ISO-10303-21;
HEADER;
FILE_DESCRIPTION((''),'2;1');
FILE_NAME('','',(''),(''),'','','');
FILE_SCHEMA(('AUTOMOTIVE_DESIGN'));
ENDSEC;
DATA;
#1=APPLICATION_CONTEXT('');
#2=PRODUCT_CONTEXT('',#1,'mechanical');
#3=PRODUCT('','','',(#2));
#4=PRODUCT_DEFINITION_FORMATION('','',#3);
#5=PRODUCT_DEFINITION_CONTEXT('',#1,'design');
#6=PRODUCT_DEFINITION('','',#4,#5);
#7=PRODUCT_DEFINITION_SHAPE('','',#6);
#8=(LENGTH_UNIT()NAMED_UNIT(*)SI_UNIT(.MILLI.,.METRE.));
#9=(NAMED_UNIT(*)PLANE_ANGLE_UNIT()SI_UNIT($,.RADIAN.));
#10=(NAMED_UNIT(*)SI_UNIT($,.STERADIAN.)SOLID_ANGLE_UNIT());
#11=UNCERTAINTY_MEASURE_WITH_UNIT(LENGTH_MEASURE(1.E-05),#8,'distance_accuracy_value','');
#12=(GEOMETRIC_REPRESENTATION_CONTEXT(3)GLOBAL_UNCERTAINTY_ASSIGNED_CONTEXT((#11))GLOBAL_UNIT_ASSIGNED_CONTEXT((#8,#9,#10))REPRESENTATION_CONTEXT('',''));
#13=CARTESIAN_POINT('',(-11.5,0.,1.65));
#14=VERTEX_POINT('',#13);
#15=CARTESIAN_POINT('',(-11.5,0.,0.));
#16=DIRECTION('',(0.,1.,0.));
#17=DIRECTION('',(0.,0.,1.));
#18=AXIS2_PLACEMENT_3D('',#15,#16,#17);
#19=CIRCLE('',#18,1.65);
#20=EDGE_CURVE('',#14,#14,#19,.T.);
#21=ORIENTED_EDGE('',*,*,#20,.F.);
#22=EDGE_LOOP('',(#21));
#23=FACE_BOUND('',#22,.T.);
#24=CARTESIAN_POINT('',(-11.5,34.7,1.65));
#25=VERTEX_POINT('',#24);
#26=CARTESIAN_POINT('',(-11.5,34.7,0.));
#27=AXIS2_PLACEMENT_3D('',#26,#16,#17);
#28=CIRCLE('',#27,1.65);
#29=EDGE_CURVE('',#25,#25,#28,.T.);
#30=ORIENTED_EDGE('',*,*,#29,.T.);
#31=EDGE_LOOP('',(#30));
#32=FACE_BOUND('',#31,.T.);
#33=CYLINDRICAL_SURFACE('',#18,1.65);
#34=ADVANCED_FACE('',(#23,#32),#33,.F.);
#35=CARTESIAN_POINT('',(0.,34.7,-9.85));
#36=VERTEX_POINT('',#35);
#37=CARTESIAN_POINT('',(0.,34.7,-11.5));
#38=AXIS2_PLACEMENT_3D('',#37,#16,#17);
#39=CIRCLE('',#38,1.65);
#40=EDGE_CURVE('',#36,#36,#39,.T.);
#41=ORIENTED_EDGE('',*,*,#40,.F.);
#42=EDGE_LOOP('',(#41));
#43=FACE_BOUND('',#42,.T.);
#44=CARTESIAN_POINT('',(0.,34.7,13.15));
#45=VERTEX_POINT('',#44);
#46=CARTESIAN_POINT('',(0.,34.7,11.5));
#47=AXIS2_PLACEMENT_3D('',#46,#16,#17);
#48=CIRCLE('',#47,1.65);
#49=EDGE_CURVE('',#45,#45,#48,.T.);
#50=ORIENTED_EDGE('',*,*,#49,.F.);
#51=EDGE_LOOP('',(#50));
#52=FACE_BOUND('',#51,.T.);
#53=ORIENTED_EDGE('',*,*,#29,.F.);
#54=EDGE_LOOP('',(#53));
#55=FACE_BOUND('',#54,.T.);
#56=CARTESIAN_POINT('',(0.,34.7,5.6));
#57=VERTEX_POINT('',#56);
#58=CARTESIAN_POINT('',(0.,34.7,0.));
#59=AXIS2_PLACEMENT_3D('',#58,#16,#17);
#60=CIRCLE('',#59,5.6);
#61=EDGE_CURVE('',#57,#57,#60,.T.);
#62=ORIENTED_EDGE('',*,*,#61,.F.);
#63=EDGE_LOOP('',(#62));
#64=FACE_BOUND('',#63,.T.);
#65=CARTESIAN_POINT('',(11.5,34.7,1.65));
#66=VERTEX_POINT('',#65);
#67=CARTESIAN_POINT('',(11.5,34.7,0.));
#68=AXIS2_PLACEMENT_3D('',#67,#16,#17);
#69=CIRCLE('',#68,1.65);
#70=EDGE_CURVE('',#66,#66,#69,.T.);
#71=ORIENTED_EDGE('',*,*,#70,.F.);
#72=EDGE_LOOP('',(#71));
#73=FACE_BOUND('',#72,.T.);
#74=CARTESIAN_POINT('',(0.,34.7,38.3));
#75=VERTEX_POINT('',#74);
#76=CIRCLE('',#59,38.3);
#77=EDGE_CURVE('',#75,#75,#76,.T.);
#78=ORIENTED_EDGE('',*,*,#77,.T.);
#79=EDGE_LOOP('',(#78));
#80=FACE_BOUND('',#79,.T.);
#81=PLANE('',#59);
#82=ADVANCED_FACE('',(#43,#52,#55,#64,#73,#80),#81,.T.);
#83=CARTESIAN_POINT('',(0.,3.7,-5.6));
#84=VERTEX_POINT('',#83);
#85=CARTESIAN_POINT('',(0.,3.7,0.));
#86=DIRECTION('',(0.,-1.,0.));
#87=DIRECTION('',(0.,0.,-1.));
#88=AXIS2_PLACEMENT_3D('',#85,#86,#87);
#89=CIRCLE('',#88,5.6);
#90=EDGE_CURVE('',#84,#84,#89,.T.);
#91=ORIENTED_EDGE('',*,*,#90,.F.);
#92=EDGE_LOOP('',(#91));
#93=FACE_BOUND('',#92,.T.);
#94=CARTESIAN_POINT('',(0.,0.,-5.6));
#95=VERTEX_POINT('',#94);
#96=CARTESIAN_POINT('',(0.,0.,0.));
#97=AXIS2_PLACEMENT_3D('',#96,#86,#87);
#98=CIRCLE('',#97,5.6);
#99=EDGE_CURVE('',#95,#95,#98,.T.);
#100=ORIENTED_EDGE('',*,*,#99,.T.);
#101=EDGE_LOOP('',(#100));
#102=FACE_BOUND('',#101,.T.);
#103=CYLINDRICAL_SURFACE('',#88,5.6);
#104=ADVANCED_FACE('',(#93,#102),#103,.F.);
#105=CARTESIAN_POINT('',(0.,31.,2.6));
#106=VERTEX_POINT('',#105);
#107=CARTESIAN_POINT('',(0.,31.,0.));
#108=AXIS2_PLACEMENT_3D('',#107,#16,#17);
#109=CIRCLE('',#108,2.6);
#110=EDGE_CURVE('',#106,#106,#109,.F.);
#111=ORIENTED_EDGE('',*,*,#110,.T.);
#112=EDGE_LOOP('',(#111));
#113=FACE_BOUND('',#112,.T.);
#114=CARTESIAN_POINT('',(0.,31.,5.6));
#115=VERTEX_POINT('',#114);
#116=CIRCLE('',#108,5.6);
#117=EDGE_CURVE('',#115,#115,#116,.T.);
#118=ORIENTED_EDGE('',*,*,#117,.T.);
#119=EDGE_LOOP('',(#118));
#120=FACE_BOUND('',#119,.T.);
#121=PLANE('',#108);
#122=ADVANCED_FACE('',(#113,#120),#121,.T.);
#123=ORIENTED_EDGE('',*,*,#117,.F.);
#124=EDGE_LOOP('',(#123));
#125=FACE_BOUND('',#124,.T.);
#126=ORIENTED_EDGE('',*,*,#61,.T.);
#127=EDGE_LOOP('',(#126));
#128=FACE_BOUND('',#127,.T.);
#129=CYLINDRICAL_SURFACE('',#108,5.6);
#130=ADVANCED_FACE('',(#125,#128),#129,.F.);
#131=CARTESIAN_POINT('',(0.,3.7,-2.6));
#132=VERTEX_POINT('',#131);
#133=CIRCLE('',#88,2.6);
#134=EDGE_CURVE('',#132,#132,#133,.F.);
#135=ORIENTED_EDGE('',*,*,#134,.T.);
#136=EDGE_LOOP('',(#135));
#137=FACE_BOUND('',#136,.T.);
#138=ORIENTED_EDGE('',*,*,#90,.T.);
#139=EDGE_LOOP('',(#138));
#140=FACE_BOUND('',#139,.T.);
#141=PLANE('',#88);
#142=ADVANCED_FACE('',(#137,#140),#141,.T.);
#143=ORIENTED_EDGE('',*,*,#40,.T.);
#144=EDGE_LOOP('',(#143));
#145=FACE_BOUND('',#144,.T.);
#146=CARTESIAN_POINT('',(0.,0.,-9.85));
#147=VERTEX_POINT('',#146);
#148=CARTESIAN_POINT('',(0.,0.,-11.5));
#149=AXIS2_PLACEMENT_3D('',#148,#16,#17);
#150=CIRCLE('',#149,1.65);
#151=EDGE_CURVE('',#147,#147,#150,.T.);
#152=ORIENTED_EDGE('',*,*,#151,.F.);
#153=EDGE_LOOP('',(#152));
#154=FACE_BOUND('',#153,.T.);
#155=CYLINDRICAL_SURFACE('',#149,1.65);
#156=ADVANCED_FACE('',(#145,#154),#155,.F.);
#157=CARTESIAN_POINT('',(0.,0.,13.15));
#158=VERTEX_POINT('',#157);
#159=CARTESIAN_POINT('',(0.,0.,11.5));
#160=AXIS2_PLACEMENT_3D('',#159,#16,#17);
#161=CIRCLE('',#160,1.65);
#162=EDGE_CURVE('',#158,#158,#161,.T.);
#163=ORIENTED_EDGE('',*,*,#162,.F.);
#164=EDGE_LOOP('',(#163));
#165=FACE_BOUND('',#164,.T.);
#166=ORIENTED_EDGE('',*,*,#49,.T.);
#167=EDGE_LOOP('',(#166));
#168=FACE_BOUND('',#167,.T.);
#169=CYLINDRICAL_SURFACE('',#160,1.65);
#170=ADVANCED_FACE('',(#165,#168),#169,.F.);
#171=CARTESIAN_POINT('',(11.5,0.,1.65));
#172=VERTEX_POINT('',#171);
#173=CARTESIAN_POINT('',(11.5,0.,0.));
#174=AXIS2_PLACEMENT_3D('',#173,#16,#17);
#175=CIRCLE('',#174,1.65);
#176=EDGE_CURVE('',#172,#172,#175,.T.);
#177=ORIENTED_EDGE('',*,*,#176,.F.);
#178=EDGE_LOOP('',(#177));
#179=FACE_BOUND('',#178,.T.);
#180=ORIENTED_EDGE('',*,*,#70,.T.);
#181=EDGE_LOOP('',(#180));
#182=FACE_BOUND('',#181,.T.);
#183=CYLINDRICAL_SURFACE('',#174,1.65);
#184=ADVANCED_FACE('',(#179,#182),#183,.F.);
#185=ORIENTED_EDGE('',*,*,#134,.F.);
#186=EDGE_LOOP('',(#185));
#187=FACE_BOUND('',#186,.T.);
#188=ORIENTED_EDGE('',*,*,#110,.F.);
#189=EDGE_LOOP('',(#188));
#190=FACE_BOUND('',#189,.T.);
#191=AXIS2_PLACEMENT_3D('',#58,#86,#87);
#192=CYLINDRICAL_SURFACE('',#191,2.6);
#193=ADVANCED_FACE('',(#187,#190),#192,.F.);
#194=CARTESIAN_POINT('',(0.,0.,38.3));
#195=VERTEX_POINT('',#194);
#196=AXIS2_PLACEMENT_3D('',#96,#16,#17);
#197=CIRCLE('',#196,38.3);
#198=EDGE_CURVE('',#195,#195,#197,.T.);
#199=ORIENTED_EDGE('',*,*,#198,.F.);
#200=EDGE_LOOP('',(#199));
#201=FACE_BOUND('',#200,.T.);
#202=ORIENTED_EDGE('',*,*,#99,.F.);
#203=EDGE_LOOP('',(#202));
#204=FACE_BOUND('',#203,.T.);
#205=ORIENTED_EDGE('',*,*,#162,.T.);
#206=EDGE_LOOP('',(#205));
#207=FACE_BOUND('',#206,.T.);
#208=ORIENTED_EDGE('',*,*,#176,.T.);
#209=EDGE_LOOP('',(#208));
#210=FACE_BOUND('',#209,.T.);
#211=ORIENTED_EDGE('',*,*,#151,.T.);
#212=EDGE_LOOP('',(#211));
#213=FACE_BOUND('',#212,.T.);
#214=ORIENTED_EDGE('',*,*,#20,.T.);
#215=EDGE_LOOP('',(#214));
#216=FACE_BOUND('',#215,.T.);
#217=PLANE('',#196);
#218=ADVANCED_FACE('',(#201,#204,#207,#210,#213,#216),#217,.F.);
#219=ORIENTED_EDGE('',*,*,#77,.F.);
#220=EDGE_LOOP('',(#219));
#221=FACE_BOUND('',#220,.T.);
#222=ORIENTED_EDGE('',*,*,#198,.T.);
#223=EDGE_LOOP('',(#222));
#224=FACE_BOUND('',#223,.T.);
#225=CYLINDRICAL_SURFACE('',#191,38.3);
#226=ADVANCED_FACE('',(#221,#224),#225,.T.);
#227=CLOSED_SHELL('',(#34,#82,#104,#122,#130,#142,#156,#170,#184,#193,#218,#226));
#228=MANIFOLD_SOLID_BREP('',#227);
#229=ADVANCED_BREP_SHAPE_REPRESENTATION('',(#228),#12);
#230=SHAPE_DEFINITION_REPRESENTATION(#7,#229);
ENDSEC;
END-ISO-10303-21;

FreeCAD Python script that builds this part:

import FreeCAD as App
import Part
import Sketcher

V = App.Vector
Q = App.Units.Quantity

doc = App.newDocument("Part")
body = doc.addObject("PartDesign::Body", "Body")

# Sketch on XZ plane
sketch1 = doc.addObject("Sketcher::SketchObject", "Sketch")
body.addObject(sketch1)
sketch1.AttachmentSupport = (doc.XZ_Plane, [""])
sketch1.MapMode = "FlatFace"
sketch1.addGeometry(Part.Circle(V(0, 0, 0), V(0, 0, 1), 38), False)
sketch1.addConstraint([
    Sketcher.Constraint("Coincident", 0, 3, -1, 1),
    Sketcher.Constraint("Diameter", 0, Q("76.6 mm")),
])
pad1 = doc.addObject("PartDesign::Pad", "Pad")
body.addObject(pad1)
pad1.Profile = sketch1
pad1.Length = 34.7
pad1.Reversed = True

# Sketch on XZ plane
sketch2 = doc.addObject("Sketcher::SketchObject", "Sketch001")
body.addObject(sketch2)
sketch2.AttachmentSupport = (doc.XZ_Plane, [""])
sketch2.MapMode = "FlatFace"
sketch2.addGeometry(Part.Circle(V(0, 0, 0), V(0, 0, 1), 2.6), False)
sketch2.addConstraint([
    Sketcher.Constraint("Coincident", 0, 3, -1, 1),
    Sketcher.Constraint("Diameter", 0, Q("5.2 mm")),
])
pocket1 = doc.addObject("PartDesign::Pocket", "Pocket")
body.addObject(pocket1)
pocket1.Profile = sketch2
pocket1.Length = 34.7

# Sketch on XZ plane
sketch3 = doc.addObject("Sketcher::SketchObject", "Sketch002")
body.addObject(sketch3)
sketch3.AttachmentSupport = (doc.XZ_Plane, [""])
sketch3.MapMode = "FlatFace"
sketch3.addGeometry(Part.Circle(V(0, 0, 0), V(0, 0, 1), 6), False)
sketch3.addConstraint([
    Sketcher.Constraint("Coincident", 0, 3, -1, 1),
    Sketcher.Constraint("Diameter", 0, Q("11.2 mm")),
])
pocket2 = doc.addObject("PartDesign::Pocket", "Pocket001")
body.addObject(pocket2)
pocket2.Profile = sketch3
pocket2.Length = 3.7

# Sketch on XZ plane
sketch4 = doc.addObject("Sketcher::SketchObject", "Sketch003")
body.addObject(sketch4)
sketch4.AttachmentSupport = (doc.XZ_Plane, [""])
sketch4.MapMode = "FlatFace"
sketch4.AttachmentOffset = App.Placement(V(0, 0, -31), App.Rotation())
sketch4.addGeometry(Part.Circle(V(0, 0, 0), V(0, 0, 1), 6), False)
sketch4.addConstraint([
    Sketcher.Constraint("Coincident", 0, 3, -1, 1),
    Sketcher.Constraint("Diameter", 0, Q("11.2 mm")),
])
pocket3 = doc.addObject("PartDesign::Pocket", "Pocket002")
body.addObject(pocket3)
pocket3.Profile = sketch4
pocket3.Length = 3.7

# Sketch on XZ plane
sketch5 = doc.addObject("Sketcher::SketchObject", "Sketch004")
body.addObject(sketch5)
sketch5.AttachmentSupport = (doc.XZ_Plane, [""])
sketch5.MapMode = "FlatFace"
sketch5.AttachmentOffset = App.Placement(V(0, 0, -34.7), App.Rotation())
sketch5.addGeometry([
    Part.Circle(V(0, -11.5, 0), V(0, 0, 1), 1.6),
    Part.Circle(V(11.5, 0, 0), V(0, 0, 1), 1.6),
    Part.Circle(V(0, 11.5, 0), V(0, 0, 1), 1.6),
    Part.Circle(V(-11.5, 0, 0), V(0, 0, 1), 1.6),
], False)
sketch5.addConstraint([
    Sketcher.Constraint("Equal", 0, 1),
    Sketcher.Constraint("Equal", 1, 2),
    Sketcher.Constraint("Equal", 2, 3),
    Sketcher.Constraint("Symmetric", 0, 3, 2, 3, -1, 1),
    Sketcher.Constraint("Symmetric", 1, 3, 3, 3, -1, 1),
    Sketcher.Constraint("PointOnObject", 0, 3, -2),
    Sketcher.Constraint("PointOnObject", 1, 3, -1),
    Sketcher.Constraint("Diameter", 0, Q("3.3 mm")),
    Sketcher.Constraint("DistanceY", 0, 3, 2, 3, Q("23 mm")),
    Sketcher.Constraint("DistanceX", 3, 3, 1, 3, Q("23 mm")),
])
pocket4 = doc.addObject("PartDesign::Pocket", "Pocket003")
body.addObject(pocket4)
pocket4.Profile = sketch5
pocket4.Type = "ThroughAll"
pocket4.Reversed = True

doc.recompute()
